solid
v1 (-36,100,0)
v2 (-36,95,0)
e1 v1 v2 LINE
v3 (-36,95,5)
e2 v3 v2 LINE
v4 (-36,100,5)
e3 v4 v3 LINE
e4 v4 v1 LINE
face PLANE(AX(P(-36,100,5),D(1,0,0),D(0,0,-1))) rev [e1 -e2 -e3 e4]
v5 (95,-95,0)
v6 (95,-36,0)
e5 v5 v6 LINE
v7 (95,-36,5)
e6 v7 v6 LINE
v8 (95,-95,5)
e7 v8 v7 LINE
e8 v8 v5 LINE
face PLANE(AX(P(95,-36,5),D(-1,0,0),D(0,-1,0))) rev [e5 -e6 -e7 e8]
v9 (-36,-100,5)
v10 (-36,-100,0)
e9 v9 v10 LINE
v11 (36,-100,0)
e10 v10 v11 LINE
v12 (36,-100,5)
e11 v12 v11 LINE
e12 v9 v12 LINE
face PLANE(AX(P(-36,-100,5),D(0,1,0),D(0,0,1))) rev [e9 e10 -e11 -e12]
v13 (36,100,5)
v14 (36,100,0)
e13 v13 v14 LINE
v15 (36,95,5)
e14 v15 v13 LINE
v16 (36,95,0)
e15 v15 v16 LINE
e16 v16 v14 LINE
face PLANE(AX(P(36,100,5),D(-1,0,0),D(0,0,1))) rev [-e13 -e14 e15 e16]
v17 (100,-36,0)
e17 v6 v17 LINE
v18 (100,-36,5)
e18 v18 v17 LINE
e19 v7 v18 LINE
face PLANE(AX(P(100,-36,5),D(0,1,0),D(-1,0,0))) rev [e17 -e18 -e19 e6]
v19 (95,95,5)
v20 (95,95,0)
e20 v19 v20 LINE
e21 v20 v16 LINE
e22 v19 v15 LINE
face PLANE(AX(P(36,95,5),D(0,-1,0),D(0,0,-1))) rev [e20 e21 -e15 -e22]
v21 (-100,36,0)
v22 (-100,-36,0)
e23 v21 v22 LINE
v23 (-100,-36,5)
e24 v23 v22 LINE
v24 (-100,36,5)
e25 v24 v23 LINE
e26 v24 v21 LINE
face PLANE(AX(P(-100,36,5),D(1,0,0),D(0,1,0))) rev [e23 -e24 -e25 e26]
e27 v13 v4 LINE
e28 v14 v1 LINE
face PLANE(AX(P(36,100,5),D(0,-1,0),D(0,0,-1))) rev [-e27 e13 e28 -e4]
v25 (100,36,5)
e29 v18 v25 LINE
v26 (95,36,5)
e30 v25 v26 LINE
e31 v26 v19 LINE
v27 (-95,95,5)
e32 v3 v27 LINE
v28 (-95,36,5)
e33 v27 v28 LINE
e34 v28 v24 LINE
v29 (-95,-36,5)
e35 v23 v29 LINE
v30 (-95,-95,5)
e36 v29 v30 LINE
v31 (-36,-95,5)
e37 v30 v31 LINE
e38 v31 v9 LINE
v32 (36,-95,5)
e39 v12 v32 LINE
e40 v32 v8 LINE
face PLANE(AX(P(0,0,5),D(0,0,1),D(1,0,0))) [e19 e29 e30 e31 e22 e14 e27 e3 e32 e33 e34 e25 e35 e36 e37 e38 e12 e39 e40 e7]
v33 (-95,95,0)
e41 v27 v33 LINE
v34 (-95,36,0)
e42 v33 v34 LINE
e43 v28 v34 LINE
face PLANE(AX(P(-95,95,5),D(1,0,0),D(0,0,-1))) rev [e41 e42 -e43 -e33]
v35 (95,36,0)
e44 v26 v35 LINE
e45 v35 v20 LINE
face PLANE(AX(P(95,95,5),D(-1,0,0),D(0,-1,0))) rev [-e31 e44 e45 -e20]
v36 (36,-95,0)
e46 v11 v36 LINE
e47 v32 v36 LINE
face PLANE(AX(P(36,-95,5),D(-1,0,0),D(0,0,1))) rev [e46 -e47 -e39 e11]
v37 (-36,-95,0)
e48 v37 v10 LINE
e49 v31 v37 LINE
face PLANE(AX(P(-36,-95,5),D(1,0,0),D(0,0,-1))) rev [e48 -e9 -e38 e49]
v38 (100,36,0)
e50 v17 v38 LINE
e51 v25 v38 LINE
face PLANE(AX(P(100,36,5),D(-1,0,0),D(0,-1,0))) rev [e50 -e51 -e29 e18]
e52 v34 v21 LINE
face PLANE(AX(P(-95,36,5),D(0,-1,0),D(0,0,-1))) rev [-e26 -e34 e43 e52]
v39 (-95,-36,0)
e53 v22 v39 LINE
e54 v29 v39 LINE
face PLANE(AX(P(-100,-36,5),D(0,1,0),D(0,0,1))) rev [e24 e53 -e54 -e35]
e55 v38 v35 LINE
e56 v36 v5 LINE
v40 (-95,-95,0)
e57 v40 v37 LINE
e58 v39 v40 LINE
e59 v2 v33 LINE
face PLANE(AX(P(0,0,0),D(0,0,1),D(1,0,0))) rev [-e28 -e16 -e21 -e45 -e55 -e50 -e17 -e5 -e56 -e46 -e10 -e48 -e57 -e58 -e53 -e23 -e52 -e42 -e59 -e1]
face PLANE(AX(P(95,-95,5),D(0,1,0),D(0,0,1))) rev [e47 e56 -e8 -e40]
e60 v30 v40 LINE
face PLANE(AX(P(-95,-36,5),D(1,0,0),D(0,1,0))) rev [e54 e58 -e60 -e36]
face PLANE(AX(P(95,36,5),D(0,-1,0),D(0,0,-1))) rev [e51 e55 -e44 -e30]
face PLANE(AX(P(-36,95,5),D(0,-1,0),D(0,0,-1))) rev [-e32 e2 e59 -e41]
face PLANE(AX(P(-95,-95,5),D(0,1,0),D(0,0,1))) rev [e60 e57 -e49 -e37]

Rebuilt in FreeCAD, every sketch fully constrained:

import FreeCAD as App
import Part
import Sketcher

V = App.Vector
Q = App.Units.Quantity

doc = App.newDocument("Part")
body = doc.addObject("PartDesign::Body", "Body")

# Sketch on XY plane
sketch1 = doc.addObject("Sketcher::SketchObject", "Sketch")
body.addObject(sketch1)
sketch1.AttachmentSupport = (doc.XY_Plane, [""])
sketch1.MapMode = "FlatFace"
sketch1.addGeometry(Part.LineSegment(V(36, 100, 0), V(-36, 100, 0)), False)
sketch1.addGeometry(Part.LineSegment(V(-36, 100, 0), V(-36, 95, 0)), False)
sketch1.addGeometry(Part.LineSegment(V(-36, 95, 0), V(-95, 95, 0)), False)
sketch1.addGeometry(Part.LineSegment(V(-95, 95, 0), V(-95, 36, 0)), False)
sketch1.addGeometry(Part.LineSegment(V(-95, 36, 0), V(-100, 36, 0)), False)
sketch1.addGeometry(Part.LineSegment(V(-100, 36, 0), V(-100, -36, 0)), False)
sketch1.addGeometry(Part.LineSegment(V(-100, -36, 0), V(-95, -36, 0)), False)
sketch1.addGeometry(Part.LineSegment(V(-95, -36, 0), V(-95, -95, 0)), False)
sketch1.addGeometry(Part.LineSegment(V(-95, -95, 0), V(-36, -95, 0)), False)
sketch1.addGeometry(Part.LineSegment(V(-36, -95, 0), V(-36, -100, 0)), False)
sketch1.addGeometry(Part.LineSegment(V(-36, -100, 0), V(36, -100, 0)), False)
sketch1.addGeometry(Part.LineSegment(V(36, -100, 0), V(36, -95, 0)), False)
sketch1.addGeometry(Part.LineSegment(V(36, -95, 0), V(95, -95, 0)), False)
sketch1.addGeometry(Part.LineSegment(V(95, -95, 0), V(95, -36, 0)), False)
sketch1.addGeometry(Part.LineSegment(V(95, -36, 0), V(100, -36, 0)), False)
sketch1.addGeometry(Part.LineSegment(V(100, -36, 0), V(100, 36, 0)), False)
sketch1.addGeometry(Part.LineSegment(V(100, 36, 0), V(95, 36, 0)), False)
sketch1.addGeometry(Part.LineSegment(V(95, 36, 0), V(95, 95, 0)), False)
sketch1.addGeometry(Part.LineSegment(V(95, 95, 0), V(36, 95, 0)), False)
sketch1.addGeometry(Part.LineSegment(V(36, 95, 0), V(36, 100, 0)), False)
sketch1.addConstraint(Sketcher.Constraint("Coincident", 0, 2, 1, 1))
sketch1.addConstraint(Sketcher.Constraint("Coincident", 1, 2, 2, 1))
sketch1.addConstraint(Sketcher.Constraint("Coincident", 2, 2, 3, 1))
sketch1.addConstraint(Sketcher.Constraint("Coincident", 3, 2, 4, 1))
sketch1.addConstraint(Sketcher.Constraint("Coincident", 4, 2, 5, 1))
sketch1.addConstraint(Sketcher.Constraint("Coincident", 5, 2, 6, 1))
sketch1.addConstraint(Sketcher.Constraint("Coincident", 6, 2, 7, 1))
sketch1.addConstraint(Sketcher.Constraint("Coincident", 7, 2, 8, 1))
sketch1.addConstraint(Sketcher.Constraint("Coincident", 8, 2, 9, 1))
sketch1.addConstraint(Sketcher.Constraint("Coincident", 9, 2, 10, 1))
sketch1.addConstraint(Sketcher.Constraint("Coincident", 10, 2, 11, 1))
sketch1.addConstraint(Sketcher.Constraint("Coincident", 11, 2, 12, 1))
sketch1.addConstraint(Sketcher.Constraint("Coincident", 12, 2, 13, 1))
sketch1.addConstraint(Sketcher.Constraint("Coincident", 13, 2, 14, 1))
sketch1.addConstraint(Sketcher.Constraint("Coincident", 14, 2, 15, 1))
sketch1.addConstraint(Sketcher.Constraint("Coincident", 15, 2, 16, 1))
sketch1.addConstraint(Sketcher.Constraint("Coincident", 16, 2, 17, 1))
sketch1.addConstraint(Sketcher.Constraint("Coincident", 17, 2, 18, 1))
sketch1.addConstraint(Sketcher.Constraint("Coincident", 18, 2, 19, 1))
sketch1.addConstraint(Sketcher.Constraint("Coincident", 19, 2, 0, 1))
sketch1.addConstraint(Sketcher.Constraint("Horizontal", 0))
sketch1.addConstraint(Sketcher.Constraint("Vertical", 1))
sketch1.addConstraint(Sketcher.Constraint("Horizontal", 2))
sketch1.addConstraint(Sketcher.Constraint("Vertical", 3))
sketch1.addConstraint(Sketcher.Constraint("Horizontal", 4))
sketch1.addConstraint(Sketcher.Constraint("Vertical", 5))
sketch1.addConstraint(Sketcher.Constraint("Horizontal", 6))
sketch1.addConstraint(Sketcher.Constraint("Vertical", 7))
sketch1.addConstraint(Sketcher.Constraint("Horizontal", 8))
sketch1.addConstraint(Sketcher.Constraint("Vertical", 9))
sketch1.addConstraint(Sketcher.Constraint("Horizontal", 10))
sketch1.addConstraint(Sketcher.Constraint("Vertical", 11))
sketch1.addConstraint(Sketcher.Constraint("Horizontal", 12))
sketch1.addConstraint(Sketcher.Constraint("Vertical", 13))
sketch1.addConstraint(Sketcher.Constraint("Horizontal", 14))
sketch1.addConstraint(Sketcher.Constraint("Vertical", 15))
sketch1.addConstraint(Sketcher.Constraint("Horizontal", 16))
sketch1.addConstraint(Sketcher.Constraint("Vertical", 17))
sketch1.addConstraint(Sketcher.Constraint("Horizontal", 18))
sketch1.addConstraint(Sketcher.Constraint("Vertical", 19))
sketch1.addConstraint(Sketcher.Constraint("Symmetric", 0, 2, 10, 2, -1, 1))
sketch1.addConstraint(Sketcher.Constraint("Symmetric", 2, 2, 12, 2, -1, 1))
sketch1.addConstraint(Sketcher.Constraint("Symmetric", 4, 2, 14, 2, -1, 1))
sketch1.addConstraint(Sketcher.Constraint("Symmetric", 6, 2, 16, 2, -1, 1))
sketch1.addConstraint(Sketcher.Constraint("Symmetric", 8, 2, 18, 2, -1, 1))
sketch1.addConstraint(Sketcher.Constraint("Symmetric", 8, 2, 11, 2, -2))
sketch1.addConstraint(Sketcher.Constraint("Symmetric", 6, 2, 13, 2, -2))
sketch1.addConstraint(Sketcher.Constraint("Equal", 16, 1))
sketch1.addConstraint(Sketcher.Constraint("Equal", 18, 3))
sketch1.addConstraint(Sketcher.Constraint("Equal", 10, 5))
sketch1.addConstraint(Sketcher.Constraint("DistanceX", 0, 2, 0, 1, Q("72 mm")))
sketch1.addConstraint(Sketcher.Constraint("DistanceX", 2, 2, 2, 1, Q("59 mm")))
sketch1.addConstraint(Sketcher.Constraint("DistanceX", 4, 2, 4, 1, Q("5 mm")))
pad1 = doc.addObject("PartDesign::Pad", "Pad")
body.addObject(pad1)
pad1.Profile = sketch1
pad1.Length = 5

doc.recompute()
